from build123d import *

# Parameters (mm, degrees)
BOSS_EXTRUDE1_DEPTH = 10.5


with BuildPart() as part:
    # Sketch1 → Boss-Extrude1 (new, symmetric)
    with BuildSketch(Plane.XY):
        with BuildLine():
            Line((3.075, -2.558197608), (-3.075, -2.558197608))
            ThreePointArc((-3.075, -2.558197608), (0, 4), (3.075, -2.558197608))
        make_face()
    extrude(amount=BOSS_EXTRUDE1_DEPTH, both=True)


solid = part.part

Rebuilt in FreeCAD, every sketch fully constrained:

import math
import FreeCAD as App
import Part
import Sketcher

doc = App.newDocument("Part")
params = doc.addObject("Spreadsheet::Sheet", "Params")
for row, (alias, value) in enumerate([
    ("sketch1_radius", "4 mm"),
    ("sketch1_width", "6.15 mm"),
    ("pad1_length", "21 mm"),
], start=1):
    params.set(f"A{row}", alias)
    params.set(f"B{row}", "=" + value)
    params.setAlias(f"B{row}", alias)

body = doc.addObject("PartDesign::Body", "Body")

# Sketch on XY plane
sketch1 = doc.addObject("Sketcher::SketchObject", "Sketch")
body.addObject(sketch1)
sketch1.AttachmentSupport = (doc.XY_Plane, [""])
sketch1.MapMode = "FlatFace"
sketch1.addGeometry([
    Part.LineSegment(App.Vector(-3.075, -2.558198, 0), App.Vector(3.075, -2.558198, 0)),
    Part.ArcOfCircle(Part.Circle(App.Vector(0, 0, 0), App.Vector(0, 0, 1), 4), math.radians(-39.758228), math.radians(219.758228)),
], False)
sketch1.addConstraint([
    Sketcher.Constraint("Coincident", 0, 1, 1, 2),
    Sketcher.Constraint("Coincident", 1, 1, 0, 2),
    Sketcher.Constraint("Horizontal", 0),
    Sketcher.Constraint("Coincident", 1, 3, -1, 1),
    Sketcher.Constraint("Radius", 1, 4.0),
    Sketcher.Constraint("DistanceX", 0, 1, 0, 2, 6.15),
])
sketch1.setExpression("Constraints[4]", "Params.sketch1_radius")
sketch1.setExpression("Constraints[5]", "Params.sketch1_width")
pad1 = doc.addObject("PartDesign::Pad", "Pad")
body.addObject(pad1)
pad1.Profile = sketch1
pad1.setExpression("Length", "Params.pad1_length")
pad1.Midplane = True

doc.recompute()
